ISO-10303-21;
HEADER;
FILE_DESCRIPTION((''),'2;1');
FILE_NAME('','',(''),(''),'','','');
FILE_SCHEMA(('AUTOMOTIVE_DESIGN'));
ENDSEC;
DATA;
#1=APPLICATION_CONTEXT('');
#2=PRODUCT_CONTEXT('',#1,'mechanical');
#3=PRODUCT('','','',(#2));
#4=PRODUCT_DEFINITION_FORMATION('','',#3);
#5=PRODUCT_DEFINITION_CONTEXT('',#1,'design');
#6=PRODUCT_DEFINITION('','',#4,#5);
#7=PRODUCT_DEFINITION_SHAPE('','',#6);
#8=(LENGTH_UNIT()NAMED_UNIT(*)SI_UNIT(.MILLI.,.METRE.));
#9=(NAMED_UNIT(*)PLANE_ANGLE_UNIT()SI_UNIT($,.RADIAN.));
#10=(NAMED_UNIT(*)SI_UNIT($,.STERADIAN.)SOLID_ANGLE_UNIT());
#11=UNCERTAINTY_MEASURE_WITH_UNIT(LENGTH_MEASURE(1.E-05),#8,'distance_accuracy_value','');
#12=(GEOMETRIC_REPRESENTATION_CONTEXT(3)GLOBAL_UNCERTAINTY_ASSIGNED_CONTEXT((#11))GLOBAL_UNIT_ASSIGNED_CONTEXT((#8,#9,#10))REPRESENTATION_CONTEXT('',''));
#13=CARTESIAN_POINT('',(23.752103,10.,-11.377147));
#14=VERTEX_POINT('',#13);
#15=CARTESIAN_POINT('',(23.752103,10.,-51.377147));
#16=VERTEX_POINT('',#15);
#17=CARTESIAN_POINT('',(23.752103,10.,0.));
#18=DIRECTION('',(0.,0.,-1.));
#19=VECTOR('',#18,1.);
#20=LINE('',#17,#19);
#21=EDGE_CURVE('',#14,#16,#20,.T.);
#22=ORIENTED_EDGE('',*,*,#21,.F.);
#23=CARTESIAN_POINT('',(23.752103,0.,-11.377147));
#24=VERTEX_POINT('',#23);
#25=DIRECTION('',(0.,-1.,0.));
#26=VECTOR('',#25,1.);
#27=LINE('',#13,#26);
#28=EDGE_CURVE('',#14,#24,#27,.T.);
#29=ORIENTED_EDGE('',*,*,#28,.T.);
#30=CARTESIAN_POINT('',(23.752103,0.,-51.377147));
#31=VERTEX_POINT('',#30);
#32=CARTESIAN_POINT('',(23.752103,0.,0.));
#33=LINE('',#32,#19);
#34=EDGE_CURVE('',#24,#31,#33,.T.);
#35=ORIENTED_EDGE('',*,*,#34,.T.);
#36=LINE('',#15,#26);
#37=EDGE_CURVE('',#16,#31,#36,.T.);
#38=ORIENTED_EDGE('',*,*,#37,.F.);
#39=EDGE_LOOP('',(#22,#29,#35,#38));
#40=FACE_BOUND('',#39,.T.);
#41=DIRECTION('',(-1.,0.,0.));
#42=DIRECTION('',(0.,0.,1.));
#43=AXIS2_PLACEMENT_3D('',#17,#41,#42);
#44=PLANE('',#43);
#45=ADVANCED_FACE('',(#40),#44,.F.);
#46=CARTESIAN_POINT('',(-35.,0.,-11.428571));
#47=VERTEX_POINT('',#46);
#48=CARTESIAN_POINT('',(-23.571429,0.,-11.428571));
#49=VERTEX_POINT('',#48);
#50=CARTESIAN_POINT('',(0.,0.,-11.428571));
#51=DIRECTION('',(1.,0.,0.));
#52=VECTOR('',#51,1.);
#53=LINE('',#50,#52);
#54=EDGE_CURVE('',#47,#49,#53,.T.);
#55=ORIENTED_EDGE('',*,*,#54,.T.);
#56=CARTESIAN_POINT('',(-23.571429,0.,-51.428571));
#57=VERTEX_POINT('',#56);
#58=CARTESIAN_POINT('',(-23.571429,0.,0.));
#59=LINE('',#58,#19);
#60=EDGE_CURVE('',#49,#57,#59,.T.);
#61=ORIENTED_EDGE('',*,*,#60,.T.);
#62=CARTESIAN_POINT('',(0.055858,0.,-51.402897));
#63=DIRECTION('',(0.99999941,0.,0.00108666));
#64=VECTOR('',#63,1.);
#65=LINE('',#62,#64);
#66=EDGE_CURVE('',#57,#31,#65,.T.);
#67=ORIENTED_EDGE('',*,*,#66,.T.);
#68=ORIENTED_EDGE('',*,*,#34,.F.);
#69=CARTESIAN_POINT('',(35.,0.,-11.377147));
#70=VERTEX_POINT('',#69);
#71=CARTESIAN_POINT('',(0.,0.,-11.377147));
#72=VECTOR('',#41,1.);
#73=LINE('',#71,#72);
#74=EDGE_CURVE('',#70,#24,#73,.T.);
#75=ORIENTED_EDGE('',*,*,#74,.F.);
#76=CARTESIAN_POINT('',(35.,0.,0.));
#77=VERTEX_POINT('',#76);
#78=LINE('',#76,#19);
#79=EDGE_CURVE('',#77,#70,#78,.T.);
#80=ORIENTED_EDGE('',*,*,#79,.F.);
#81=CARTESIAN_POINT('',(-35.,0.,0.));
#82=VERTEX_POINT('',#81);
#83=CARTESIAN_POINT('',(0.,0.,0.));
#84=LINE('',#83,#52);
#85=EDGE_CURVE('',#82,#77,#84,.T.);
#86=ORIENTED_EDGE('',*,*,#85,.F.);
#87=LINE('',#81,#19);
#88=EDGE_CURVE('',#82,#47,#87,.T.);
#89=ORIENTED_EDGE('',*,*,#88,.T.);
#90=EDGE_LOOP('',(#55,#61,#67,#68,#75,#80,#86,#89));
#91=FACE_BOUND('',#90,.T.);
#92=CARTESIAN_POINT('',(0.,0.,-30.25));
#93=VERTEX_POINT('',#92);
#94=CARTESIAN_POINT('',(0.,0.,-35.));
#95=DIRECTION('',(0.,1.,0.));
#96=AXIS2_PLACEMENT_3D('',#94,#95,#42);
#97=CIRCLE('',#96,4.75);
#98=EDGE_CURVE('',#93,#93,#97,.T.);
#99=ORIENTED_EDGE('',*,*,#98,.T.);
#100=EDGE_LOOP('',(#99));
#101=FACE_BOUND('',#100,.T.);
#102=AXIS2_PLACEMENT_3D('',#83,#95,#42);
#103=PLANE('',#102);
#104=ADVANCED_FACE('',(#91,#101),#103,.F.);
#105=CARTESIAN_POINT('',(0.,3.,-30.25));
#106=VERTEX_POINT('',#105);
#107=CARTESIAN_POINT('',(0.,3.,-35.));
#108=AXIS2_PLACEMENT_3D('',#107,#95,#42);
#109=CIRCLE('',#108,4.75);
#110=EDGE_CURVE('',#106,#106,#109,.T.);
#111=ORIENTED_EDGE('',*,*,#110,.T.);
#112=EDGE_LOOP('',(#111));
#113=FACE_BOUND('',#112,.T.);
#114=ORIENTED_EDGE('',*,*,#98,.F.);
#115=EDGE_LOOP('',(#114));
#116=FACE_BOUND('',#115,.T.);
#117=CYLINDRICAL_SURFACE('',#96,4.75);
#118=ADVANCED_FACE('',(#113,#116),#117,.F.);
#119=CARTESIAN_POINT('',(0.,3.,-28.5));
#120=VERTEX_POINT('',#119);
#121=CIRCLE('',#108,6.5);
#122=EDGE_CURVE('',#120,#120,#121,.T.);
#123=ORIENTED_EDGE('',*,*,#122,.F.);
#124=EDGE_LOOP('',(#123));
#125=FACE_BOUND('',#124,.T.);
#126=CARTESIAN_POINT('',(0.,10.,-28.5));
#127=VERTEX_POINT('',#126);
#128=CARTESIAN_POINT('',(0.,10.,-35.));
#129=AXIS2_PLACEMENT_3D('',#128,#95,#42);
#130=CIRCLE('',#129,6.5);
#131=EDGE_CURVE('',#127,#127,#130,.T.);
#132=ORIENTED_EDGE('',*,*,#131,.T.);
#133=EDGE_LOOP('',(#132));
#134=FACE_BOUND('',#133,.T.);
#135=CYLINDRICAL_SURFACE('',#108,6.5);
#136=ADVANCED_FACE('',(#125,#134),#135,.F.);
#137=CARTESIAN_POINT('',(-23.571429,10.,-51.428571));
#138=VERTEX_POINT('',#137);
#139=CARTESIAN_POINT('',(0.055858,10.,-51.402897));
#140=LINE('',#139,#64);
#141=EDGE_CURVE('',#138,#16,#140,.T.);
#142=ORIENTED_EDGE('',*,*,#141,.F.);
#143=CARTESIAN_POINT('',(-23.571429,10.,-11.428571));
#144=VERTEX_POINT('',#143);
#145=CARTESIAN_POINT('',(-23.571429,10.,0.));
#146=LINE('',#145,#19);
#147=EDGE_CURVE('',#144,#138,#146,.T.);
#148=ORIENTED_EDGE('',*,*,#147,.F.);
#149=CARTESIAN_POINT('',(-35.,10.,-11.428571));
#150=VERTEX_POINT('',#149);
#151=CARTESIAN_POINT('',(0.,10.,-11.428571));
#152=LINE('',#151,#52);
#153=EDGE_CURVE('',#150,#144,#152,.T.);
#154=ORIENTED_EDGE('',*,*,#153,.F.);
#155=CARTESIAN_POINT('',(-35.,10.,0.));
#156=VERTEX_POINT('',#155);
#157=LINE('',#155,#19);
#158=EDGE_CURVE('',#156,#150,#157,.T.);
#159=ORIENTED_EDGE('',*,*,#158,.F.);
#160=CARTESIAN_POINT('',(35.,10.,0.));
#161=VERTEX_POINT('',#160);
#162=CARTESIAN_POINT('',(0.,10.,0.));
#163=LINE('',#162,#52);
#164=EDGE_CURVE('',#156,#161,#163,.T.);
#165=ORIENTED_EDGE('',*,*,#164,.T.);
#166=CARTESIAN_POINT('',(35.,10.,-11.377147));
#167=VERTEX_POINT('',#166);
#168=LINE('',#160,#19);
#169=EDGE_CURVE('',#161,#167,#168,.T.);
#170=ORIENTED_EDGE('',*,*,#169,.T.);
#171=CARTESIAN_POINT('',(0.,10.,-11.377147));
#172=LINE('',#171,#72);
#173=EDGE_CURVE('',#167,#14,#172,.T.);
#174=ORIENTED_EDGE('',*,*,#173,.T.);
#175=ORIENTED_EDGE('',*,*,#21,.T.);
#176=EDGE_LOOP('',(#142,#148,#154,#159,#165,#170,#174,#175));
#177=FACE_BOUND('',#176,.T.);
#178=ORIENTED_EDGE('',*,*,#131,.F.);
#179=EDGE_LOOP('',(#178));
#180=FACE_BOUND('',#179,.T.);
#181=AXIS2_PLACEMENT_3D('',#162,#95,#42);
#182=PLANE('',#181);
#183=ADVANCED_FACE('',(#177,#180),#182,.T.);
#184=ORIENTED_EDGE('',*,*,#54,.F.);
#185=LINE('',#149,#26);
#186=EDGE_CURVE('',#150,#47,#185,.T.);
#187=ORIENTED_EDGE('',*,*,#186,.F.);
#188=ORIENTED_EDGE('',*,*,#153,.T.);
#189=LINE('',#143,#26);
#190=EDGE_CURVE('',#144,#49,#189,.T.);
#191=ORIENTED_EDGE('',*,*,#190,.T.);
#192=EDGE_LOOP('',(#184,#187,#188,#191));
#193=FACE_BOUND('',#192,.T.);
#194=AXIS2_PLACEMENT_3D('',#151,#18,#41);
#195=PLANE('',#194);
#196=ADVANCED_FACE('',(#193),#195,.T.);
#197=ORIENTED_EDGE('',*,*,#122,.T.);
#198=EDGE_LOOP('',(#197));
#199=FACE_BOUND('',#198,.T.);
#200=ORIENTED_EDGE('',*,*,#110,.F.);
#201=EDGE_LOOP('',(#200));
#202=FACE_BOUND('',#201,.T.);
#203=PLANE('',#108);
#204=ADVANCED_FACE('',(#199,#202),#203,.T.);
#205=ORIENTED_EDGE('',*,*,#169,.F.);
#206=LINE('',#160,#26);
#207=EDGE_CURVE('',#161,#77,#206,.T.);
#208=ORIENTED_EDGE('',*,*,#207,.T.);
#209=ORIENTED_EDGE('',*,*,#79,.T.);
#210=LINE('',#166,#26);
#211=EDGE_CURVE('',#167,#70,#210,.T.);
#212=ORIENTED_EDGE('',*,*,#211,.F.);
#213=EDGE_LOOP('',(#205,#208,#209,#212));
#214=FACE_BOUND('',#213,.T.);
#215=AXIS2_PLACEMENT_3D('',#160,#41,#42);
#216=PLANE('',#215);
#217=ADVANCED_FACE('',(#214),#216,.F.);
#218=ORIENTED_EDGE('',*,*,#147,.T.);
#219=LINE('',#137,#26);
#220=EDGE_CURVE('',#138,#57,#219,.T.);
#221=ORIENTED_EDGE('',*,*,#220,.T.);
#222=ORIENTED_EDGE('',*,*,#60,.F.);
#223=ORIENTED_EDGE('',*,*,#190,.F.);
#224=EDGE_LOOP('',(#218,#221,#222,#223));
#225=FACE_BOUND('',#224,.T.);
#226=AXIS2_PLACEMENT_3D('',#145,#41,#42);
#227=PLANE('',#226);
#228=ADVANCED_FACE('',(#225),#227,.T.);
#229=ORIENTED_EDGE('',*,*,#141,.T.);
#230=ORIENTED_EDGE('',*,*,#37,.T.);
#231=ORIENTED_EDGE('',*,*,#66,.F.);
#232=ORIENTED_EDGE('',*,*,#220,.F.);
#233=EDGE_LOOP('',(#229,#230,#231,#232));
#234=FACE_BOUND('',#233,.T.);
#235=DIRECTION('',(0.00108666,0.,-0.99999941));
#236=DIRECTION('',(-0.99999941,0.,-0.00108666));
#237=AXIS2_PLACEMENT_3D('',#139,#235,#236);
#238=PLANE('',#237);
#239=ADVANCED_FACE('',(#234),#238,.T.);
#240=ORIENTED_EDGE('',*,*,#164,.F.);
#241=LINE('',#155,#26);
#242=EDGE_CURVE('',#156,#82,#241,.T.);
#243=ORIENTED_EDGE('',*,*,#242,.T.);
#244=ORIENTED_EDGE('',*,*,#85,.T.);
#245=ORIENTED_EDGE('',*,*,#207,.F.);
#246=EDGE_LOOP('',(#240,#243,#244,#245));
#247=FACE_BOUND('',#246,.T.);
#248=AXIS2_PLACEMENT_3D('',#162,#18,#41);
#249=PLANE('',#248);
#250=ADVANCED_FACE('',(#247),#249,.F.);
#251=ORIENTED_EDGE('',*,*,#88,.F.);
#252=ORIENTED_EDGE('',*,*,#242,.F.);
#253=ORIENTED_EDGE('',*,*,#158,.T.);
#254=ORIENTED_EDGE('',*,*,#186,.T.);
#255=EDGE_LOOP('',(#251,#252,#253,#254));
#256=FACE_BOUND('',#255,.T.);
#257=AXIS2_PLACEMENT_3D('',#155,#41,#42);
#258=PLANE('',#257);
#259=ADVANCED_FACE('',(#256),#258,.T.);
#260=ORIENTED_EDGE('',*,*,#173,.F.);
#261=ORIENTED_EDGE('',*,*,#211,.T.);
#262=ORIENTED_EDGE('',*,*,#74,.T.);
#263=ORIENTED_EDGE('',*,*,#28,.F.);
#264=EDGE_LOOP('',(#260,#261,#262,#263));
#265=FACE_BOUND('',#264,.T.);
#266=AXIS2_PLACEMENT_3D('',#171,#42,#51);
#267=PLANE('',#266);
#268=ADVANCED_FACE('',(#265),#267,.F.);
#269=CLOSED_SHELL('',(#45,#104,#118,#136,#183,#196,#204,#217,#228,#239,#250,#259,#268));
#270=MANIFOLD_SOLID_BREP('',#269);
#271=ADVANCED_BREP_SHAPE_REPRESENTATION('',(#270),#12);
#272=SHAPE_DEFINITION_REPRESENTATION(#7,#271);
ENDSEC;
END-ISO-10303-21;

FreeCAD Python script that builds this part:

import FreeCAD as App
import Part
import Sketcher


def add_polygon(sketch, points):
    """Adds a closed chain of lines whose ends are joined by coincident constraints."""
    first, n = sketch.GeometryCount, len(points)
    for a, b in zip(points, points[1:] + points[:1]):
        sketch.addGeometry(Part.LineSegment(App.Vector(*a, 0), App.Vector(*b, 0)), False)
    for i in range(n):
        sketch.addConstraint(Sketcher.Constraint("Coincident", first + i, 2, first + (i + 1) % n, 1))

doc = App.newDocument("Part")
body = doc.addObject("PartDesign::Body", "Body")

sketch1 = body.newObject("Sketcher::SketchObject", "Sketch")
sketch1.AttachmentSupport = (doc.getObject("XZ_Plane"), [""])
sketch1.MapMode = "FlatFace"
add_polygon(sketch1, [(24, -51), (-24, -51), (-24, -11), (-35, -11), (-35, 0), (35, 0), (35, -11), (24, -11)])
sketch1.addConstraint([
    Sketcher.Constraint("Vertical", 1),
    Sketcher.Constraint("Horizontal", 2),
    Sketcher.Constraint("Vertical", 3),
    Sketcher.Constraint("Horizontal", 4),
    Sketcher.Constraint("Vertical", 5),
    Sketcher.Constraint("Horizontal", 6),
    Sketcher.Constraint("Vertical", 7),
    Sketcher.Constraint("Symmetric", 3, 2, 4, 2, -1, 1),
    Sketcher.Constraint("Equal", 2, 3),
    Sketcher.Constraint("Equal", 1, 7),
    Sketcher.Constraint("DistanceX", 4, 1, 4, 2, 70.0),
    Sketcher.Constraint("DistanceY", 1, 1, 1, 2, 40.0),
    Sketcher.Constraint("DistanceX", 2, 2, 2, 1, 11.428571),
    Sketcher.Constraint("Distance", 0, 47.32356),
    Sketcher.Constraint("DistanceY", 5, 2, 5, 1, 11.377147),
])
pad1 = body.newObject("PartDesign::Pad", "Pad")
pad1.Profile = sketch1
pad1.Length = 10
pad1.Reversed = True

sketch2 = body.newObject("Sketcher::SketchObject", "Sketch001")
sketch2.AttachmentSupport = (doc.getObject("XZ_Plane"), [""])
sketch2.MapMode = "FlatFace"
sketch2.AttachmentOffset = App.Placement(App.Vector(0, 0, -10), App.Rotation())
sketch2.addGeometry(Part.Circle(App.Vector(0, -35, 0), App.Vector(0, 0, 1), 6), False)
sketch2.addConstraint([
    Sketcher.Constraint("PointOnObject", 0, 3, -2),
    Sketcher.Constraint("Diameter", 0, 13.0),
    Sketcher.Constraint("DistanceY", 0, 3, -1, 1, 35.0),
])
pocket1 = body.newObject("PartDesign::Pocket", "Pocket")
pocket1.Profile = sketch2
pocket1.Length = 7
pocket1.Reversed = True

sketch3 = body.newObject("Sketcher::SketchObject", "Sketch002")
sketch3.AttachmentSupport = (doc.getObject("XZ_Plane"), [""])
sketch3.MapMode = "FlatFace"
sketch3.AttachmentOffset = App.Placement(App.Vector(0, 0, -3), App.Rotation())
sketch3.addGeometry(Part.Circle(App.Vector(0, -35, 0), App.Vector(0, 0, 1), 4.8), False)
sketch3.addConstraint([
    Sketcher.Constraint("PointOnObject", 0, 3, -2),
    Sketcher.Constraint("Diameter", 0, 9.5),
    Sketcher.Constraint("DistanceY", 0, 3, -1, 1, 35.0),
])
pocket2 = body.newObject("PartDesign::Pocket", "Pocket001")
pocket2.Profile = sketch3
pocket2.Type = "ThroughAll"
pocket2.Reversed = True

doc.recompute()
